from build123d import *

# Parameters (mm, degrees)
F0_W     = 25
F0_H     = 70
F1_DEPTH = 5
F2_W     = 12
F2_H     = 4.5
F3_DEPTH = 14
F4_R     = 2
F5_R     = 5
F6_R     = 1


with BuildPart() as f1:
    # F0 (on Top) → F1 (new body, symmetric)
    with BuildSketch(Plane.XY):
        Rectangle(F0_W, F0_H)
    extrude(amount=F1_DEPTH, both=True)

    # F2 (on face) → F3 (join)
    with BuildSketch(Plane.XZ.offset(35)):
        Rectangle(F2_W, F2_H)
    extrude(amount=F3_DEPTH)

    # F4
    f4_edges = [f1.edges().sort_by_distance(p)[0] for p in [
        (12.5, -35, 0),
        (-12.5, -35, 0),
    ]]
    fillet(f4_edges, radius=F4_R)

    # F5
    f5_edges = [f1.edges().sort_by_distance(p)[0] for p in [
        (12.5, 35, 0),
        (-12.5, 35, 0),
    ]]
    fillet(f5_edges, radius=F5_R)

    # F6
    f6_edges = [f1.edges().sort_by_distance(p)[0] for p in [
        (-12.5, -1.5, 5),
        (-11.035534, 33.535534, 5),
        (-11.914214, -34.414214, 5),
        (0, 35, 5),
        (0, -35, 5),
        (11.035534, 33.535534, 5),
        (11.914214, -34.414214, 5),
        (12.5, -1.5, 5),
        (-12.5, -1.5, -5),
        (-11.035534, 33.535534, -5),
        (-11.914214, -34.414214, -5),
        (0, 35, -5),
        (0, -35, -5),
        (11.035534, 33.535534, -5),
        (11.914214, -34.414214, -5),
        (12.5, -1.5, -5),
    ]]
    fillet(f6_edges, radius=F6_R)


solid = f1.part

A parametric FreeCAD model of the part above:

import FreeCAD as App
import Part
import Sketcher
from FreeCAD import Vector


def edges_at(feature, points):
    """Names of the edges that pass closest to the given points."""
    edges = feature.Shape.Edges
    near = lambda p: min(range(len(edges)), key=lambda i: edges[i].distToShape(Part.Vertex(*p))[0])
    return sorted({f"Edge{near(p) + 1}" for p in points})

doc = App.newDocument("Part")
body = doc.addObject("PartDesign::Body", "Body")

sketch1 = body.newObject("Sketcher::SketchObject", "Sketch")
sketch1.AttachmentSupport = (doc.getObject("XY_Plane"), [""])
sketch1.MapMode = "FlatFace"
sketch1.addGeometry([
    Part.LineSegment(Vector(-12, 35, 0), Vector(-12, -35, 0)),
    Part.LineSegment(Vector(-12, -35, 0), Vector(12, -35, 0)),
    Part.LineSegment(Vector(12, -35, 0), Vector(12, 35, 0)),
    Part.LineSegment(Vector(12, 35, 0), Vector(-12, 35, 0)),
], False)
sketch1.addConstraint([
    Sketcher.Constraint("Coincident", 0, 2, 1, 1),
    Sketcher.Constraint("Coincident", 1, 2, 2, 1),
    Sketcher.Constraint("Coincident", 2, 2, 3, 1),
    Sketcher.Constraint("Coincident", 3, 2, 0, 1),
    Sketcher.Constraint("Vertical", 0),
    Sketcher.Constraint("Horizontal", 1),
    Sketcher.Constraint("Vertical", 2),
    Sketcher.Constraint("Horizontal", 3),
    Sketcher.Constraint("Symmetric", 0, 2, 2, 2, -1, 1),
    Sketcher.Constraint("DistanceX", 1, 1, 1, 2, 25.0),
    Sketcher.Constraint("DistanceY", 0, 2, 0, 1, 70.0),
])
pad1 = body.newObject("PartDesign::Pad", "Pad")
pad1.Profile = sketch1
pad1.Length = 10
pad1.Midplane = True

sketch2 = body.newObject("Sketcher::SketchObject", "Sketch001")
sketch2.AttachmentSupport = (doc.getObject("XZ_Plane"), [""])
sketch2.MapMode = "FlatFace"
sketch2.AttachmentOffset = App.Placement(Vector(0, 0, 35), App.Rotation())
sketch2.addGeometry([
    Part.LineSegment(Vector(-6, 2.2, 0), Vector(-6, -2.2, 0)),
    Part.LineSegment(Vector(-6, -2.2, 0), Vector(6, -2.2, 0)),
    Part.LineSegment(Vector(6, -2.2, 0), Vector(6, 2.2, 0)),
    Part.LineSegment(Vector(6, 2.2, 0), Vector(-6, 2.2, 0)),
], False)
sketch2.addConstraint([
    Sketcher.Constraint("Coincident", 0, 2, 1, 1),
    Sketcher.Constraint("Coincident", 1, 2, 2, 1),
    Sketcher.Constraint("Coincident", 2, 2, 3, 1),
    Sketcher.Constraint("Coincident", 3, 2, 0, 1),
    Sketcher.Constraint("Vertical", 0),
    Sketcher.Constraint("Horizontal", 1),
    Sketcher.Constraint("Vertical", 2),
    Sketcher.Constraint("Horizontal", 3),
    Sketcher.Constraint("Symmetric", 0, 2, 2, 2, -1, 1),
    Sketcher.Constraint("DistanceX", 1, 1, 1, 2, 12.0),
    Sketcher.Constraint("DistanceY", 0, 2, 0, 1, 4.5),
])
pad2 = body.newObject("PartDesign::Pad", "Pad001")
pad2.Profile = sketch2
pad2.Length = 14
doc.recompute()

fillet = body.newObject("PartDesign::Fillet", "Fillet")
fillet.Base = (pad2, edges_at(pad2, [(12.5, -35, 0), (-12.5, -35, 0)]))
fillet.Radius = 2
doc.recompute()

fillet2 = body.newObject("PartDesign::Fillet", "Fillet001")
fillet2.Base = (fillet, edges_at(fillet, [(12.5, 35, 0), (-12.5, 35, 0)]))
fillet2.Radius = 5
doc.recompute()

fillet3 = body.newObject("PartDesign::Fillet", "Fillet002")
fillet3.Base = (fillet2, edges_at(fillet2, [
    (-12.5, -1.5, 5),
    (-11.036, 33.536, 5),
    (-11.914, -34.414, 5),
    (0, 35, 5),
    (0, -35, 5),
    (11.036, 33.536, 5),
    (11.914, -34.414, 5),
    (12.5, -1.5, 5),
    (-12.5, -1.5, -5),
    (-11.036, 33.536, -5),
    (-11.914, -34.414, -5),
    (0, 35, -5),
    (0, -35, -5),
    (11.036, 33.536, -5),
    (11.914, -34.414, -5),
    (12.5, -1.5, -5),
]))
fillet3.Radius = 1

doc.recompute()
